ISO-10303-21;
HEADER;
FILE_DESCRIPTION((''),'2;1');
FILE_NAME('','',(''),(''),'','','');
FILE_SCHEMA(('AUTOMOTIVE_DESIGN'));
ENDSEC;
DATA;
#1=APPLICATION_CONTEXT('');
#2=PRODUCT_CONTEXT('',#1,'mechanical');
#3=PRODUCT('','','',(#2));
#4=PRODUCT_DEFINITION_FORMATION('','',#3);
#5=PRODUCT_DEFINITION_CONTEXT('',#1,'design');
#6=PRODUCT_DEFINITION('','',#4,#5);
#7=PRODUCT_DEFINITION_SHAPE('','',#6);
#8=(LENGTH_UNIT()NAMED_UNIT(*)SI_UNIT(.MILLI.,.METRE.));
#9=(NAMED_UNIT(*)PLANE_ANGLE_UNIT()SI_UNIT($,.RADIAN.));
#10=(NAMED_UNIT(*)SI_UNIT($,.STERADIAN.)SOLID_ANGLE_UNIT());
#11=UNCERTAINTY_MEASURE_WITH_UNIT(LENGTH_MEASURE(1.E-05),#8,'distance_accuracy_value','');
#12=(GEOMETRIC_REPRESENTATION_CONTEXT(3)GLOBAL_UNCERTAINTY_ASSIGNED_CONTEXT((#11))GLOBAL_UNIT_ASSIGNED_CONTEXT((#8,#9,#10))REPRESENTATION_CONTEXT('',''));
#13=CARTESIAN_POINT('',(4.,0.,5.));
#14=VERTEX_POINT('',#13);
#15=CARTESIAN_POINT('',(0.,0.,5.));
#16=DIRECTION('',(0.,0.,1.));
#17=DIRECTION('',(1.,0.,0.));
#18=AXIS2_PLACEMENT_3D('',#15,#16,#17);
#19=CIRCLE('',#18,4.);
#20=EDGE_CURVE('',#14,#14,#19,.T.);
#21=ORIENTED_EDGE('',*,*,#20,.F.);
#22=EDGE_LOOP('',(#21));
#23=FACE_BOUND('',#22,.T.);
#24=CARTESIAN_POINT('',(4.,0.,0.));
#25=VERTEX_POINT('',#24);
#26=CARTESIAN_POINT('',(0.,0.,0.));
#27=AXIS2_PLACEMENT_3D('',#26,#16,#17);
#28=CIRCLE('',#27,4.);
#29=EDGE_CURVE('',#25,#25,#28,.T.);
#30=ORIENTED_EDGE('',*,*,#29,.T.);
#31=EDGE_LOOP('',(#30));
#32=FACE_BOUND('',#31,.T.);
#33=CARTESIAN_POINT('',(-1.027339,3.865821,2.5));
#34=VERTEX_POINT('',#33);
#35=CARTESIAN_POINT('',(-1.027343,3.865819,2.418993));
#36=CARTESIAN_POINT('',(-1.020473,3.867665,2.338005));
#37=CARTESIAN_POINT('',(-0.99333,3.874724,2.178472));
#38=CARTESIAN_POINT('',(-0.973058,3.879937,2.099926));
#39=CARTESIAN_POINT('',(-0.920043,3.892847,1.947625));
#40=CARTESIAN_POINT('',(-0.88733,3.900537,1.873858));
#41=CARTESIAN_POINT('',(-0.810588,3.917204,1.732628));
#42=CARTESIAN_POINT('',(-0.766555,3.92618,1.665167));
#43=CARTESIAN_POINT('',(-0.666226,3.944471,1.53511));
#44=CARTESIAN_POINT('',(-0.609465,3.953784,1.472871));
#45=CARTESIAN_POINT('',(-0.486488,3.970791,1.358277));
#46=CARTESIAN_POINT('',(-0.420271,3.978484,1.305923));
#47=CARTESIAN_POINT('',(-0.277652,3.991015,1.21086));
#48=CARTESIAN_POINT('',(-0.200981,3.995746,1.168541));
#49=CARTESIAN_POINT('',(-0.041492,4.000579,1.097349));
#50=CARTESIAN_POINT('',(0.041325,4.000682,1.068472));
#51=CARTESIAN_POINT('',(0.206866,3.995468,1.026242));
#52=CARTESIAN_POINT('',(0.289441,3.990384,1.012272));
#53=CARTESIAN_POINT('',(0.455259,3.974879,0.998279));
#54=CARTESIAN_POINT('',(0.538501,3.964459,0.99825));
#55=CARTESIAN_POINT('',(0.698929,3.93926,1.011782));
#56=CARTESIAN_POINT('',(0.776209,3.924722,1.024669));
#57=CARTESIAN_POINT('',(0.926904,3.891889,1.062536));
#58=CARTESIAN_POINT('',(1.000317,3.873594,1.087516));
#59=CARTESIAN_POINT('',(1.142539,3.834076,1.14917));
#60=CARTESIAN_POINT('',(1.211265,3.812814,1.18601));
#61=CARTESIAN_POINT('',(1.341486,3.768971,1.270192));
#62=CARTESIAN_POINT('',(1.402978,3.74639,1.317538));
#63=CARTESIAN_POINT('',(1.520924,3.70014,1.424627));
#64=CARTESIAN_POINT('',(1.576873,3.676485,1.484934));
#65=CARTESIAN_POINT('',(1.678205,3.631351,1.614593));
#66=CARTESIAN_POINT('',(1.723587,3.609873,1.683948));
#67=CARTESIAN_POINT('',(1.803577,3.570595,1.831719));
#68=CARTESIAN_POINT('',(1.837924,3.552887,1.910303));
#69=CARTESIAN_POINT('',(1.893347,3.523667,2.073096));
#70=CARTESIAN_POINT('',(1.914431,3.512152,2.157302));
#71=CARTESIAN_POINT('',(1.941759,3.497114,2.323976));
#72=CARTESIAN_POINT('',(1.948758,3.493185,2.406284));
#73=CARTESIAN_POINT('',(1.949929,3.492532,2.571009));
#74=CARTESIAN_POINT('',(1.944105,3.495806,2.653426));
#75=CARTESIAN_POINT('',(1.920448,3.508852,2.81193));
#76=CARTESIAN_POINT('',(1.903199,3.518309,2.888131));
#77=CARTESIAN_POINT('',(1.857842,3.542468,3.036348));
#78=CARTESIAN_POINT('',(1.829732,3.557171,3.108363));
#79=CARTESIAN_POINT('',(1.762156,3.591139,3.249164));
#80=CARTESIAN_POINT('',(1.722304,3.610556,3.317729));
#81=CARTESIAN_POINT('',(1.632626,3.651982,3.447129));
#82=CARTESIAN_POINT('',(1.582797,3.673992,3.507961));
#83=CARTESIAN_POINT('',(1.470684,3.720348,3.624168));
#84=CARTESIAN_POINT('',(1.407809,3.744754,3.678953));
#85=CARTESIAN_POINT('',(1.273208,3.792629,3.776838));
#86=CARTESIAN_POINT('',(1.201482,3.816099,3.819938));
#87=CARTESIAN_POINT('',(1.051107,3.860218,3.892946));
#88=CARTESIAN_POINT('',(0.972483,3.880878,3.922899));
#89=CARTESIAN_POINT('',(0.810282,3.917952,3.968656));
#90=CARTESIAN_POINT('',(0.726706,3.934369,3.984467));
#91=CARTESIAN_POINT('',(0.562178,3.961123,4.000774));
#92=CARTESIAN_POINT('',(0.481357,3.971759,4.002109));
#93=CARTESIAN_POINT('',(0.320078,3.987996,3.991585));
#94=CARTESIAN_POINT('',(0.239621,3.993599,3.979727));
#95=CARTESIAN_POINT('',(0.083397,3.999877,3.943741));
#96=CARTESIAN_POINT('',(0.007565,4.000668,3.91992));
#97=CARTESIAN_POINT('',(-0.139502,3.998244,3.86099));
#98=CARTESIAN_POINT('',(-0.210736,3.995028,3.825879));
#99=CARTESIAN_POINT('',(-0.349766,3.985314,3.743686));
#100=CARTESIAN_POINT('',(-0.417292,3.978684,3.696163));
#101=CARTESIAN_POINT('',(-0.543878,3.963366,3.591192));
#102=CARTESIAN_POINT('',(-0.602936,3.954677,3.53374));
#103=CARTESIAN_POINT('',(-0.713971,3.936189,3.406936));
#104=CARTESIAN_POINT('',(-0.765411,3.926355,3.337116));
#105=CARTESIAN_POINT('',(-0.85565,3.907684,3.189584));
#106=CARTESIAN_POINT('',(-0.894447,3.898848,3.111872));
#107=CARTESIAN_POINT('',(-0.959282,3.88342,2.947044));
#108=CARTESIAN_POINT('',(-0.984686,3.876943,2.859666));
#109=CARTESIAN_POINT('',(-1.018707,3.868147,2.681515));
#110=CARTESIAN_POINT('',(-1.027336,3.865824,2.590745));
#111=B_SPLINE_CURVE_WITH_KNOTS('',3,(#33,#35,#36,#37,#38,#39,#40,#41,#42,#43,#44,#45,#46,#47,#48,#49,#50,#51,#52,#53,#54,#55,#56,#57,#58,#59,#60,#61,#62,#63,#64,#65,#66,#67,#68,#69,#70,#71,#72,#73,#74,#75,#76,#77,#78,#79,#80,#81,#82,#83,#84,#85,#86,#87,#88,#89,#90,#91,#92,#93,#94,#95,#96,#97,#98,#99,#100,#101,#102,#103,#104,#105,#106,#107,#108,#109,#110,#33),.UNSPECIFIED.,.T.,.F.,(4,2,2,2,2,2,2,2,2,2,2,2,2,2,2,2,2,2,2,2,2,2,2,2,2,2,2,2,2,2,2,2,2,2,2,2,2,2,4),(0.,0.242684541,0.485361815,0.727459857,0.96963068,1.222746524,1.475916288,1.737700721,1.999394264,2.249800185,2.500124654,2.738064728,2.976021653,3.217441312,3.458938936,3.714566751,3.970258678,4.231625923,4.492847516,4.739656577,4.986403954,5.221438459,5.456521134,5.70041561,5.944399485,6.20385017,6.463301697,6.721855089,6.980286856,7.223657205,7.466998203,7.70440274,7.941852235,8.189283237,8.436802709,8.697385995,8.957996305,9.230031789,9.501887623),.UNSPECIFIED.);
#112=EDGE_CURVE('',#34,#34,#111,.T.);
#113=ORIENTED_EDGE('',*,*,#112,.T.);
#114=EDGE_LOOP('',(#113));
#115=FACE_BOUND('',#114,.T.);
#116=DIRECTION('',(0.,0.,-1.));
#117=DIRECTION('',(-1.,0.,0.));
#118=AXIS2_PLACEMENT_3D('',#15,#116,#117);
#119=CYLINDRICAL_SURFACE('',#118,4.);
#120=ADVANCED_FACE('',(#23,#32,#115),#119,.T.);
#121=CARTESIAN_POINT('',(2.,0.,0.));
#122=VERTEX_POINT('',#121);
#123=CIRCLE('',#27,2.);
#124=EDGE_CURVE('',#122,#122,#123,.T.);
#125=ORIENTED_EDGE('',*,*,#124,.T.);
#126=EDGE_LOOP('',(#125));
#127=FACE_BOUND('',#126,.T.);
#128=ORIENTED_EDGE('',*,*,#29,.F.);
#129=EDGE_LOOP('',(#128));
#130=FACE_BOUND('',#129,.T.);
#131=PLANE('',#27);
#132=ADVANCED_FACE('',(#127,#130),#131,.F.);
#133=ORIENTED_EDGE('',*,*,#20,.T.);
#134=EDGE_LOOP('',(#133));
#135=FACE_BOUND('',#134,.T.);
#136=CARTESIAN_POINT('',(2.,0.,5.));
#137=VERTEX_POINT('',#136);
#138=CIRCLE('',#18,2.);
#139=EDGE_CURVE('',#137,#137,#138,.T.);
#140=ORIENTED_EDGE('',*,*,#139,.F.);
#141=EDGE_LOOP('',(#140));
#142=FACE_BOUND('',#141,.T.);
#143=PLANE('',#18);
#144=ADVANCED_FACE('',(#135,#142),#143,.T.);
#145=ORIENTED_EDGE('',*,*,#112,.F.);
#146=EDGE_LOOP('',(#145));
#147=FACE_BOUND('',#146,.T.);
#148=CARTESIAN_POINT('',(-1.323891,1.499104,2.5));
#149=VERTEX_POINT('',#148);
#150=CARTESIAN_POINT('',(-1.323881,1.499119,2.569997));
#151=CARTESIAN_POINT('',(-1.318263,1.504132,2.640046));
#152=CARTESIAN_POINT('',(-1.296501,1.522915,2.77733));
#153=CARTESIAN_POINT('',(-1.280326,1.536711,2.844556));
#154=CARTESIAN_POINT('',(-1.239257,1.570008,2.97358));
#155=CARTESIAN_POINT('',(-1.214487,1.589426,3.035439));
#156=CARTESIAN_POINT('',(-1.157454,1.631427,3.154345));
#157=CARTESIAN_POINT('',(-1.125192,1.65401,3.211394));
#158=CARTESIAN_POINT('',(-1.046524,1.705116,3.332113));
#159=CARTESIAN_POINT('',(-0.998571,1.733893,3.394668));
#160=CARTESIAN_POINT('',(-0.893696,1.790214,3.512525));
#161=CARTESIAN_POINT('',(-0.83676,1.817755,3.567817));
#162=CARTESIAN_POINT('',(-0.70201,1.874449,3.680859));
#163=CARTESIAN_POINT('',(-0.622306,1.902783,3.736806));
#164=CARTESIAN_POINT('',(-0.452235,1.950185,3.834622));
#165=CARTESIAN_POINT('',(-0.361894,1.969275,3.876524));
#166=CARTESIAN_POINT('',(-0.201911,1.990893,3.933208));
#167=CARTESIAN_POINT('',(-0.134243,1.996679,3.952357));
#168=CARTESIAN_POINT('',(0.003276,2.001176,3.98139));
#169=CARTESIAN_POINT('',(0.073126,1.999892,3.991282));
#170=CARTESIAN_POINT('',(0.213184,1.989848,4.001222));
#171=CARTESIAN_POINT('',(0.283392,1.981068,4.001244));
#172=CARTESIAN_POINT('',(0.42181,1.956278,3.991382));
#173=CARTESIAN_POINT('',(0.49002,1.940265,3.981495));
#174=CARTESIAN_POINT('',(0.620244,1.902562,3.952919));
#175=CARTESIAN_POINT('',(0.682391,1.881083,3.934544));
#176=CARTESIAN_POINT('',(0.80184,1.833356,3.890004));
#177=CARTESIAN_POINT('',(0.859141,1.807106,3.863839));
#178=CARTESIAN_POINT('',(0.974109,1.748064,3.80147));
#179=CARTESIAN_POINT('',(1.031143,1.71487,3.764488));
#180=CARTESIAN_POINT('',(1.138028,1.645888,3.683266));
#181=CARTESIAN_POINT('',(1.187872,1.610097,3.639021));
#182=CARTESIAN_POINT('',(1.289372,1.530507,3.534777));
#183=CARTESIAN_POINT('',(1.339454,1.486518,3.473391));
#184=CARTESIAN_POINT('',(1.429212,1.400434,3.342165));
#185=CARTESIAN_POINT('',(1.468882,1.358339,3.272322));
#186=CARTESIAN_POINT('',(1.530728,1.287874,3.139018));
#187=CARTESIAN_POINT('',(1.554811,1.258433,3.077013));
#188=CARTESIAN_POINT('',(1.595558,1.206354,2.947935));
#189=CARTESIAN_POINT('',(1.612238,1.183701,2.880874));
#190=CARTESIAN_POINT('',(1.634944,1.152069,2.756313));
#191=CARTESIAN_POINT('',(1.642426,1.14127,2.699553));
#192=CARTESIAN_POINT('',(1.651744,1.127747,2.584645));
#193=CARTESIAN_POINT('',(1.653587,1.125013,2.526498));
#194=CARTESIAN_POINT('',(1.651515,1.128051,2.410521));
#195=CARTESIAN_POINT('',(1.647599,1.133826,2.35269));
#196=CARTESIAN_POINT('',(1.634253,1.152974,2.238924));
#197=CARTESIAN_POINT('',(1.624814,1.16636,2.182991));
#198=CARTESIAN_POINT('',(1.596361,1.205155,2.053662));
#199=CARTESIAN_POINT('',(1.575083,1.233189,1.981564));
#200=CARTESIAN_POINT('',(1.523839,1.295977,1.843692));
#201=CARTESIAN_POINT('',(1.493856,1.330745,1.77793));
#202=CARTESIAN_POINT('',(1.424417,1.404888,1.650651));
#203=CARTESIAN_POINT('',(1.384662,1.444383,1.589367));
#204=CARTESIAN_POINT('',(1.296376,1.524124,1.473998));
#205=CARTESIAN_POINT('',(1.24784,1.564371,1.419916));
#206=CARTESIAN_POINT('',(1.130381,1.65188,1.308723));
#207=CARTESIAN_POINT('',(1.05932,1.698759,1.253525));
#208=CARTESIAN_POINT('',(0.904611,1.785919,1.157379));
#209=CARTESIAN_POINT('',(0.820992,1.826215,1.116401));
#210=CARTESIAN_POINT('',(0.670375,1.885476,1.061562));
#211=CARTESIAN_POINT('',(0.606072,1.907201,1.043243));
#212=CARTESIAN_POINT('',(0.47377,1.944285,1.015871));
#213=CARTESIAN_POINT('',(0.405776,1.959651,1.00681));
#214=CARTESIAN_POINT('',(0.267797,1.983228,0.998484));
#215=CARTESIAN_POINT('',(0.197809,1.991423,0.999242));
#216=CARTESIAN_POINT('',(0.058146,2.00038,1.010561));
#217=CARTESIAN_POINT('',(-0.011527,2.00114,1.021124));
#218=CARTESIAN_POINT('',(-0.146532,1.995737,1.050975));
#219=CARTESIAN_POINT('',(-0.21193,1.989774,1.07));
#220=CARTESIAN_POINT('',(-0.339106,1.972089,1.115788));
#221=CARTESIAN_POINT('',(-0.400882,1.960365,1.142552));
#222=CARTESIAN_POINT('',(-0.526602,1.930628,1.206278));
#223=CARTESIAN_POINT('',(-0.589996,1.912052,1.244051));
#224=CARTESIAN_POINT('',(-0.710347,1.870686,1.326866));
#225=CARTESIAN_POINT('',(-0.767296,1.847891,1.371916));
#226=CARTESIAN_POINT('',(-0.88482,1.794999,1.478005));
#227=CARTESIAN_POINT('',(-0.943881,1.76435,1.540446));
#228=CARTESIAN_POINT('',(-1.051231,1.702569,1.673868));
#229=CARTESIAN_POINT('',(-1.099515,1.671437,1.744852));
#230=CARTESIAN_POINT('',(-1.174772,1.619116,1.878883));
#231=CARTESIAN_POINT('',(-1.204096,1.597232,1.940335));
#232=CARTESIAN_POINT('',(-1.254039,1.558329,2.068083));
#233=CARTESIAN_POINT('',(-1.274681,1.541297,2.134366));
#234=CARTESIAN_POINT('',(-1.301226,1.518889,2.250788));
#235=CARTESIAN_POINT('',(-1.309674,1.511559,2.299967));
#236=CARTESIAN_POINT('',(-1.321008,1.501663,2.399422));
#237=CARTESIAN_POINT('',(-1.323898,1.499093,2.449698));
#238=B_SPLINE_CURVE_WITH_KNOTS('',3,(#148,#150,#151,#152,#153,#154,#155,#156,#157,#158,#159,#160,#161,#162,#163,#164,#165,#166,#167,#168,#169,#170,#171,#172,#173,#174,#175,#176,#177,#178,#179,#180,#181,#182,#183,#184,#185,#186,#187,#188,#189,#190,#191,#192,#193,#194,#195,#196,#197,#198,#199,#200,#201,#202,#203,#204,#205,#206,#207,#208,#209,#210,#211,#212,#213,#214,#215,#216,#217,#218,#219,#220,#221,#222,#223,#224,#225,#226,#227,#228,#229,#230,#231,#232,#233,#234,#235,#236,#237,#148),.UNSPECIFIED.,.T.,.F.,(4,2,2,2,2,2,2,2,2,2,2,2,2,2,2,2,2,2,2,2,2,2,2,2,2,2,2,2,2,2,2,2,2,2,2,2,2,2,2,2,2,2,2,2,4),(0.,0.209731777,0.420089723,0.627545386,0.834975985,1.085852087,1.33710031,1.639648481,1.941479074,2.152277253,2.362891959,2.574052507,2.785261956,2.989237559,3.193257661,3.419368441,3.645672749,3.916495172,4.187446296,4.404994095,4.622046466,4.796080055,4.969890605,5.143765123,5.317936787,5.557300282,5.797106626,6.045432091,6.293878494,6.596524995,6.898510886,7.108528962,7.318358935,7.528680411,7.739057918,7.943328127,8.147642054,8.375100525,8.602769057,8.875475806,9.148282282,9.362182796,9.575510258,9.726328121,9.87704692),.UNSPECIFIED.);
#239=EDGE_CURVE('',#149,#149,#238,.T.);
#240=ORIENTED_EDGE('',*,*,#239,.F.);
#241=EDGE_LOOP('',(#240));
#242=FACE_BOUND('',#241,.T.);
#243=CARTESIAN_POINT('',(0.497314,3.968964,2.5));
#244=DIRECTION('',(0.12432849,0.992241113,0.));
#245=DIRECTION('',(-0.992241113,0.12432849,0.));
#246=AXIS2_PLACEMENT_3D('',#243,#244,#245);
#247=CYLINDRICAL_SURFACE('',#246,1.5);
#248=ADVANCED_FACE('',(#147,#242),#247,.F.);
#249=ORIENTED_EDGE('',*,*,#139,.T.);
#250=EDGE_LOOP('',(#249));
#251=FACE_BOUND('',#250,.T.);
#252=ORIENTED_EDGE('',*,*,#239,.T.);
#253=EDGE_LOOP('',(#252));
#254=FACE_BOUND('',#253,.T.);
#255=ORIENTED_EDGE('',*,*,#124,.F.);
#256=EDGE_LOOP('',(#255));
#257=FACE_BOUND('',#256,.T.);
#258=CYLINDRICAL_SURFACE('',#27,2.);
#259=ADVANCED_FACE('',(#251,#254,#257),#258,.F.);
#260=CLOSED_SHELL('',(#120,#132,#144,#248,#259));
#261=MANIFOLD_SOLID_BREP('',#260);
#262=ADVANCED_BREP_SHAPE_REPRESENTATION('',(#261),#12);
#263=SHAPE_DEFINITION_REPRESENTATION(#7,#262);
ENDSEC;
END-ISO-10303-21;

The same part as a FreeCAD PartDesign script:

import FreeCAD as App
import Part
import Sketcher
from FreeCAD import Vector
Q = App.Units.Quantity

doc = App.newDocument("Part")
body = doc.addObject("PartDesign::Body", "Body")

# Sketch on XY plane
sketch1 = body.newObject("Sketcher::SketchObject", "Sketch")
sketch1.AttachmentSupport = (doc.getObject("XY_Plane"), [""])
sketch1.MapMode = "FlatFace"
sketch1.addGeometry(Part.Circle(Vector(0, 0, 0), Vector(0, 0, 1), 4), False)
sketch1.addConstraint([
    Sketcher.Constraint("Coincident", 0, 3, -1, 1),
    Sketcher.Constraint("Diameter", 0, Q("8 mm")),
])
pad1 = body.newObject("PartDesign::Pad", "Pad")
pad1.Profile = sketch1
pad1.Length = 5

# Sketch on XY plane
sketch2 = body.newObject("Sketcher::SketchObject", "Sketch001")
sketch2.AttachmentSupport = (doc.getObject("XY_Plane"), [""])
sketch2.MapMode = "FlatFace"
sketch2.AttachmentOffset = App.Placement(Vector(0, 0, 5), App.Rotation())
sketch2.addGeometry(Part.Circle(Vector(0, 0, 0), Vector(0, 0, 1), 2), False)
sketch2.addConstraint([
    Sketcher.Constraint("Coincident", 0, 3, -1, 1),
    Sketcher.Constraint("Diameter", 0, Q("4 mm")),
])
pocket1 = body.newObject("PartDesign::Pocket", "Pocket")
pocket1.Profile = sketch2
pocket1.Type = "ThroughAll"

# Sketch on an angled plane
sketch3 = body.newObject("Sketcher::SketchObject", "Sketch002")
sketch3.Placement = App.Placement(Vector(0.497314, 3.968964, 2.5), App.Rotation(Vector(0.992241113, -0.12432849, 0), Vector(0, 0, -1), Vector(0.12432849, 0.992241113, 0), "ZXY"))
sketch3.addGeometry(Part.Circle(Vector(0, 0, 0), Vector(0, 0, 1), 1.5), False)
sketch3.addConstraint([
    Sketcher.Constraint("Coincident", 0, 3, -1, 1),
    Sketcher.Constraint("Diameter", 0, Q("3 mm")),
])
pocket2 = body.newObject("PartDesign::Pocket", "Pocket001")
pocket2.Profile = sketch3
pocket2.Length = 2.677124

doc.recompute()
